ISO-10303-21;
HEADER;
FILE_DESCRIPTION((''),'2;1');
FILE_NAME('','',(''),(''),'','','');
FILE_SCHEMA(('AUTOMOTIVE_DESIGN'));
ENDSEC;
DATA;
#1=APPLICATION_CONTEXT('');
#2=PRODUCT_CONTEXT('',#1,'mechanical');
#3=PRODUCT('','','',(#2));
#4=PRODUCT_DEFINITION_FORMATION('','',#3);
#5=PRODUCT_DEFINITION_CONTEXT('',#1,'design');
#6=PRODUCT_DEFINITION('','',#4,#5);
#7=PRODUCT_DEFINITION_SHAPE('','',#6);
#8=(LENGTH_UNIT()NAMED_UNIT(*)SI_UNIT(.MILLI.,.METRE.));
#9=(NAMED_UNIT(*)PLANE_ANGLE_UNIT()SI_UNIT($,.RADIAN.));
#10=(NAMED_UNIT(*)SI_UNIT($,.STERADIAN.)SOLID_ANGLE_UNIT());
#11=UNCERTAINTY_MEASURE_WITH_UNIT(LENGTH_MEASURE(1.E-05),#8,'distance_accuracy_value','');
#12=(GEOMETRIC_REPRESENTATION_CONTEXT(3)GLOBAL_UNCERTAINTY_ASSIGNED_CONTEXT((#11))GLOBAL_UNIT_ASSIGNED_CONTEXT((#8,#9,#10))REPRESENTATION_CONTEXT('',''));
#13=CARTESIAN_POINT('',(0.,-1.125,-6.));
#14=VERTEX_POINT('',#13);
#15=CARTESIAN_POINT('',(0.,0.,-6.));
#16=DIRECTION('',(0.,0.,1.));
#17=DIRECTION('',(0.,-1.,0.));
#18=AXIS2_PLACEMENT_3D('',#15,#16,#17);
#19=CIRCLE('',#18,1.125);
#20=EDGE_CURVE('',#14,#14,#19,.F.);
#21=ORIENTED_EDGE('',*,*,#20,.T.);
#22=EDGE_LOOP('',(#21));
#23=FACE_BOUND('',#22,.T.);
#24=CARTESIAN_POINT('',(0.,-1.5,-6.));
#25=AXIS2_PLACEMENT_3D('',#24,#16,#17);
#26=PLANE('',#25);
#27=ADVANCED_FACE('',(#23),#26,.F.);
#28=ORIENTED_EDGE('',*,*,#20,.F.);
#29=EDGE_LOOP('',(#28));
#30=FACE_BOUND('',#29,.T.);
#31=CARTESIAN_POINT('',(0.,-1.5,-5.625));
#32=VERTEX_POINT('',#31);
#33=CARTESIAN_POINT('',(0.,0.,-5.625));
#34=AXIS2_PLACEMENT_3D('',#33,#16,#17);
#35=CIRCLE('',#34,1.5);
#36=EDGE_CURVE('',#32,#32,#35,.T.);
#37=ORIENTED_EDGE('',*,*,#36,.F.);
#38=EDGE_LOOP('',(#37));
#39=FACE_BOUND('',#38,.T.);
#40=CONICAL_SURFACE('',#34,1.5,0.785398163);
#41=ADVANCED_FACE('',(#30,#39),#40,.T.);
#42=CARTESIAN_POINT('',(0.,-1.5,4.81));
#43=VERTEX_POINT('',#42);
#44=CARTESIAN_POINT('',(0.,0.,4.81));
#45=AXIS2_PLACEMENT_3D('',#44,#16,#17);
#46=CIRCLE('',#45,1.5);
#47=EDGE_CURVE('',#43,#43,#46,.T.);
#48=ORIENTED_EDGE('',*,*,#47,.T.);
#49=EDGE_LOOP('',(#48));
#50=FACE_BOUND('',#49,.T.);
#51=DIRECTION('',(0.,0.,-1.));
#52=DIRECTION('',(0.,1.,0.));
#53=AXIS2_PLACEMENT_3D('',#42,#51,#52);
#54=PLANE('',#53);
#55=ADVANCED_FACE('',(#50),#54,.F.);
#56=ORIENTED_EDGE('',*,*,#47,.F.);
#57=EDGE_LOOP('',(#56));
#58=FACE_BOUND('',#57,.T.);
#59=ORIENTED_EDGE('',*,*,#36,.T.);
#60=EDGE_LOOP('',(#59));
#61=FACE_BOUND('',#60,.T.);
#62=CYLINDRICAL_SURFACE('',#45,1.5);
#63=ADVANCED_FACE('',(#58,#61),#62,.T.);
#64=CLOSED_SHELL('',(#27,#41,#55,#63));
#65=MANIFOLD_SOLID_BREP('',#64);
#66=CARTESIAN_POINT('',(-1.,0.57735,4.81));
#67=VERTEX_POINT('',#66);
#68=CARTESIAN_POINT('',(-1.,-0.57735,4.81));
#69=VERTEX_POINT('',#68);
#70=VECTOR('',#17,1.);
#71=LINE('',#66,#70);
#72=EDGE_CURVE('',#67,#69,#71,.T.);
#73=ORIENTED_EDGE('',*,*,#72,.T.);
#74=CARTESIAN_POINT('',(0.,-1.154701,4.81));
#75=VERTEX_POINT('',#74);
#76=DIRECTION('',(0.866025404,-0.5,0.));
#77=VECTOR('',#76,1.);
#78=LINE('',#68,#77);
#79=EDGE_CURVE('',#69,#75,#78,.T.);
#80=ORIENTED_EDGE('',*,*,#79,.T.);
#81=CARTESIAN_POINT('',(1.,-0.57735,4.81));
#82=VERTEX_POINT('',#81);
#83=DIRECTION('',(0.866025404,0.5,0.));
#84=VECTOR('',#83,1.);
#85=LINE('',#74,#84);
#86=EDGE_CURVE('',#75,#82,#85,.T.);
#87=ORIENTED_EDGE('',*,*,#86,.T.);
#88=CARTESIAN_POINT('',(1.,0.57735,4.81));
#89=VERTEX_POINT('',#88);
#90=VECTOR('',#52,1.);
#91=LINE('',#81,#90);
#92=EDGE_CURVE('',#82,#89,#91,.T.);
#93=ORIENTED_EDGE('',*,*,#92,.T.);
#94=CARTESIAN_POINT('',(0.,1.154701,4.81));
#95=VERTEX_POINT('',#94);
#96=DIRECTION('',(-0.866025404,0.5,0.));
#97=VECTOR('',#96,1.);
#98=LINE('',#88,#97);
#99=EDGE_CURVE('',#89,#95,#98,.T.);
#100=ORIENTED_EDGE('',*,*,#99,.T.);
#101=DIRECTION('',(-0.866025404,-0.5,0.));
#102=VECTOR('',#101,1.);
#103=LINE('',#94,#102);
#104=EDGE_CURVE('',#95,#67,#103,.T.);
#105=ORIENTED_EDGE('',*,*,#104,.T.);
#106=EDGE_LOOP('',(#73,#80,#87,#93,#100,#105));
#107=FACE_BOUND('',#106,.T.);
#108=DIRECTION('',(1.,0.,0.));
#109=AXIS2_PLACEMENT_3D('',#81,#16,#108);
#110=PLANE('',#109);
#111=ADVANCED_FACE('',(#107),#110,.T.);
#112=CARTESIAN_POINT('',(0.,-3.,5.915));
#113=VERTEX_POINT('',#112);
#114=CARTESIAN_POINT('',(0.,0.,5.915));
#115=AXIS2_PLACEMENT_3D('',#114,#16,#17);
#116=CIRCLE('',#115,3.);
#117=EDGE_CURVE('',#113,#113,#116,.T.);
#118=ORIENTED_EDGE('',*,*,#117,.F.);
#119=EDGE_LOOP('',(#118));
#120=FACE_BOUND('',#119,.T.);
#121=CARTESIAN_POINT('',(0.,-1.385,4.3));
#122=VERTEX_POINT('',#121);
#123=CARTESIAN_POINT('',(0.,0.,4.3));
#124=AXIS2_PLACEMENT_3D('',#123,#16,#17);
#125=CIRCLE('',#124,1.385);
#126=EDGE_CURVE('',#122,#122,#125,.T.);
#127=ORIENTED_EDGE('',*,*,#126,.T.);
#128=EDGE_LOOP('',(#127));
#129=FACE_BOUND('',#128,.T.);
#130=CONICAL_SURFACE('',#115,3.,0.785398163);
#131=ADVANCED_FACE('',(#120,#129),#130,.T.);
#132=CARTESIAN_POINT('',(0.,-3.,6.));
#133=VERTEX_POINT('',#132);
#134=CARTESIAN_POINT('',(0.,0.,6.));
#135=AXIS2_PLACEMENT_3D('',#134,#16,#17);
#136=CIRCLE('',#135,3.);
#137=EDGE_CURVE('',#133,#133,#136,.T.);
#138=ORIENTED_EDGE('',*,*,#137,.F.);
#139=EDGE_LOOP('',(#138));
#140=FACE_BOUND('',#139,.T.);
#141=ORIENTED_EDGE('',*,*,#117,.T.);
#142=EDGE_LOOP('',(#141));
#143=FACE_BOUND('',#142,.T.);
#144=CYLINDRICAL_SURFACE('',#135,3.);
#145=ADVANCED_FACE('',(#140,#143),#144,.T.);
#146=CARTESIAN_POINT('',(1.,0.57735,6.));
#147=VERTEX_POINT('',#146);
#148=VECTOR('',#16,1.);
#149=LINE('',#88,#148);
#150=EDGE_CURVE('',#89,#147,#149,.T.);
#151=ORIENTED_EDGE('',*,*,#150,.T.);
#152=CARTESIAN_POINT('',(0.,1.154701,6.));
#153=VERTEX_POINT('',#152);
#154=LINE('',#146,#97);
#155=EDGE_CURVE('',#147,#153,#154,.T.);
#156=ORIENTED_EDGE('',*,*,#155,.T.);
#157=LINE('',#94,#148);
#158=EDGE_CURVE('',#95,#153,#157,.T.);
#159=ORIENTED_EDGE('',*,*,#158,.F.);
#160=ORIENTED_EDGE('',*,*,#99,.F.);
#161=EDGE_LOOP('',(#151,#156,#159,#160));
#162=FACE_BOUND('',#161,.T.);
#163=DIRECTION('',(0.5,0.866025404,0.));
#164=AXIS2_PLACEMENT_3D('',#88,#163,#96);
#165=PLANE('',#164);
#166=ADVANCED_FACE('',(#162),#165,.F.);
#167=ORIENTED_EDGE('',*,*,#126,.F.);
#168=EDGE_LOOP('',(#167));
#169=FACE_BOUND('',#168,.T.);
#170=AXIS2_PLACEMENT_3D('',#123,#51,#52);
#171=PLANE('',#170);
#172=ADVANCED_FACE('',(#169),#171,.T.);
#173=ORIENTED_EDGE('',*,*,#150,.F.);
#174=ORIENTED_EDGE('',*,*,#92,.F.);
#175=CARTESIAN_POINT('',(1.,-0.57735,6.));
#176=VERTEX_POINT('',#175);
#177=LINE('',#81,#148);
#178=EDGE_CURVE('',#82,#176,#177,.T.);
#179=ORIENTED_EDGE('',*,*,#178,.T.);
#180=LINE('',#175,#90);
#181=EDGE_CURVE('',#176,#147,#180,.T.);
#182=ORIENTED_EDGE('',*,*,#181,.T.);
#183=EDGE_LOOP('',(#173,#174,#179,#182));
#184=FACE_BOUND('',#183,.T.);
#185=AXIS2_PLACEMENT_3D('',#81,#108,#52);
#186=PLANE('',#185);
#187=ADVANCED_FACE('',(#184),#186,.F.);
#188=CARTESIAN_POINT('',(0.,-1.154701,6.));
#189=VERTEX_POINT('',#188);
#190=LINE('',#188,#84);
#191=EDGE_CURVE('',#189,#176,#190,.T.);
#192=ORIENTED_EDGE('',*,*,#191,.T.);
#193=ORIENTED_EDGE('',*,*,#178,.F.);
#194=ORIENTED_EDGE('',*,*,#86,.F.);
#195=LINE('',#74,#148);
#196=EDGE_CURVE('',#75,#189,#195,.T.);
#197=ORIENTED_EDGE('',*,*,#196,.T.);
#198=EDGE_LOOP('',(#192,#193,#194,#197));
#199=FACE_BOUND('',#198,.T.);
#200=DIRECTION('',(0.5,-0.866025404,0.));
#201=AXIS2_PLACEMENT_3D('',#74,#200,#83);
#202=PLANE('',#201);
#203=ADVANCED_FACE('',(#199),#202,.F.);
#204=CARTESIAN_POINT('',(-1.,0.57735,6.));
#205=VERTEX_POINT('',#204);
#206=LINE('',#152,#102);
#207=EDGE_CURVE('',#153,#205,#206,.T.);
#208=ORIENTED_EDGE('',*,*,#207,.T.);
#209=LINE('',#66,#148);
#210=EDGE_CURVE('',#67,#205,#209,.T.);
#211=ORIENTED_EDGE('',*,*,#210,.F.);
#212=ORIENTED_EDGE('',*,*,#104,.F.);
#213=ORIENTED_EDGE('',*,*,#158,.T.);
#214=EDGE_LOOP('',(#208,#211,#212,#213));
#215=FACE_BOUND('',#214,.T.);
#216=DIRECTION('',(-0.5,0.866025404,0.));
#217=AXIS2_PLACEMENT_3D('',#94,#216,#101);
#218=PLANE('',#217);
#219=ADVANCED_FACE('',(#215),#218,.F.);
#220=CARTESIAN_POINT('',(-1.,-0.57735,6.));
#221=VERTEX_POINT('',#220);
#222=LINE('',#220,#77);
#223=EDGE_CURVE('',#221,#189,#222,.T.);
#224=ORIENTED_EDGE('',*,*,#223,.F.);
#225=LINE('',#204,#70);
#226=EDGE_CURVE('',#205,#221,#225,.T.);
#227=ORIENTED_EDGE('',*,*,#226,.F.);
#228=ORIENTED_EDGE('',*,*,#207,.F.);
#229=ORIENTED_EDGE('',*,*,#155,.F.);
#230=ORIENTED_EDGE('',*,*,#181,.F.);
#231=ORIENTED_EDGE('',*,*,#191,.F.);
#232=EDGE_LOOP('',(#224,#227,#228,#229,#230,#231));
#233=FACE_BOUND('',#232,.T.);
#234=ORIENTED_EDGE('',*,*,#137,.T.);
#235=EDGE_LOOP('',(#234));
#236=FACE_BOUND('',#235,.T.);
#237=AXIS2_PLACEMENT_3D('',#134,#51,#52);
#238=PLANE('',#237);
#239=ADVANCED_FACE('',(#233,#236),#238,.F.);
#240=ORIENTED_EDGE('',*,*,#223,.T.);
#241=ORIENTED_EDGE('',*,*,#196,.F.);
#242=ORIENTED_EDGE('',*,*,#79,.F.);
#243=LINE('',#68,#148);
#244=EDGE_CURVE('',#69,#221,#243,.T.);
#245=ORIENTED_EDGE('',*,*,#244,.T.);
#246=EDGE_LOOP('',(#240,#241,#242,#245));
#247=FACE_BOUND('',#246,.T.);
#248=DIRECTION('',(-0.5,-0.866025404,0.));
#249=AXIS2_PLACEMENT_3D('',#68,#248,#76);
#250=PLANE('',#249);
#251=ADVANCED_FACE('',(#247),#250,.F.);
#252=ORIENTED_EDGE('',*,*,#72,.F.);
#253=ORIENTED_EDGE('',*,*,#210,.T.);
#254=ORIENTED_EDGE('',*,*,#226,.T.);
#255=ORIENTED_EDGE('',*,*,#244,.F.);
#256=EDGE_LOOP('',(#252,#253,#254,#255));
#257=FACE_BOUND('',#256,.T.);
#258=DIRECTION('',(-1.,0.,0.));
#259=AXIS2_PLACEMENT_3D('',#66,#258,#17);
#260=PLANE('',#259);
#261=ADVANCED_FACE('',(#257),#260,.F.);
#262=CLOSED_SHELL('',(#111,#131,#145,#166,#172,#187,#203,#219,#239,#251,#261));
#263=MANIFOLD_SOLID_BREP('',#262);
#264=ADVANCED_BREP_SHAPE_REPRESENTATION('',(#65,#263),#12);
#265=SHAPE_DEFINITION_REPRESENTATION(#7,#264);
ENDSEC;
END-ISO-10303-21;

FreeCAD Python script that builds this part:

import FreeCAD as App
import Part
import Sketcher
Q = App.Units.Quantity


def edges_at(feature, points):
    """Names of the edges that pass closest to the given points."""
    edges = feature.Shape.Edges
    near = lambda p: min(range(len(edges)), key=lambda i: edges[i].distToShape(Part.Vertex(*p))[0])
    return sorted({f"Edge{near(p) + 1}" for p in points})


def add_polygon(sketch, points):
    """Adds a closed chain of lines whose ends are joined by coincident constraints."""
    first, n = sketch.GeometryCount, len(points)
    for a, b in zip(points, points[1:] + points[:1]):
        sketch.addGeometry(Part.LineSegment(App.Vector(*a, 0), App.Vector(*b, 0)), False)
    for i in range(n):
        sketch.addConstraint(Sketcher.Constraint("Coincident", first + i, 2, first + (i + 1) % n, 1))

doc = App.newDocument("Part")
body = doc.addObject("PartDesign::Body", "Body")

sketch1 = doc.addObject("Sketcher::SketchObject", "Sketch")
body.addObject(sketch1)
sketch1.AttachmentSupport = (doc.YZ_Plane, [""])
sketch1.MapMode = "FlatFace"
add_polygon(sketch1, [(1.5, -6), (1.5, 4.8), (0, 4.8), (0, -6)])
sketch1.addConstraint([
    Sketcher.Constraint("Vertical", 0),
    Sketcher.Constraint("Horizontal", 1),
    Sketcher.Constraint("Vertical", 2),
    Sketcher.Constraint("Horizontal", 3),
    Sketcher.Constraint("PointOnObject", 1, 2, -2),
    Sketcher.Constraint("DistanceX", 1, 2, 1, 1, Q("1.5 mm")),
    Sketcher.Constraint("DistanceY", 2, 2, -1, 1, Q("6 mm")),
    Sketcher.Constraint("DistanceY", 0, 1, 0, 2, Q("10.81 mm")),
])
revolution = doc.addObject("PartDesign::Revolution", "Revolution")
body.addObject(revolution)
revolution.Profile = sketch1
revolution.ReferenceAxis = (sketch1, ["V_Axis"])
revolution.Angle = 360
doc.recompute()

chamfer = doc.addObject("PartDesign::Chamfer", "Chamfer")
body.addObject(chamfer)
chamfer.Base = (revolution, edges_at(revolution, [(0, 1.5, -6)]))
chamfer.Size = 0.375
body2 = doc.addObject("PartDesign::Body", "Body001")

sketch2 = doc.addObject("Sketcher::SketchObject", "Sketch001")
body2.addObject(sketch2)
sketch2.AttachmentSupport = (doc.getObject("YZ_Plane001"), [""])
sketch2.MapMode = "FlatFace"
add_polygon(sketch2, [(3, 5.92), (3, 6), (0, 6), (0, 4.3), (1.39, 4.3)])
sketch2.addConstraint([
    Sketcher.Constraint("Vertical", 0),
    Sketcher.Constraint("Horizontal", 1),
    Sketcher.Constraint("Vertical", 2),
    Sketcher.Constraint("Horizontal", 3),
    Sketcher.Constraint("PointOnObject", 1, 2, -2),
    Sketcher.Constraint("DistanceX", 1, 2, 1, 1, Q("3 mm")),
    Sketcher.Constraint("Angle", 4, Q("45 deg")),
    Sketcher.Constraint("DistanceY", 2, 2, 2, 1, Q("1.7 mm")),
    Sketcher.Constraint("DistanceY", -1, 1, 0, 2, Q("6 mm")),
    Sketcher.Constraint("DistanceX", 3, 1, 3, 2, Q("1.385 mm")),
])
revolution2 = doc.addObject("PartDesign::Revolution", "Revolution001")
body2.addObject(revolution2)
revolution2.Profile = sketch2
revolution2.ReferenceAxis = (sketch2, ["V_Axis"])
revolution2.Angle = 360

sketch3 = doc.addObject("Sketcher::SketchObject", "Sketch002")
body2.addObject(sketch3)
sketch3.AttachmentSupport = (doc.getObject("XY_Plane001"), [""])
sketch3.MapMode = "FlatFace"
sketch3.AttachmentOffset = App.Placement(App.Vector(0, 0, 6), App.Rotation())
add_polygon(sketch3, [(1, -0.6), (1, 0.6), (0, 1.2), (-1, 0.6), (-1, -0.6), (0, -1.2)])
sketch3.addConstraint([
    Sketcher.Constraint("Vertical", 0),
    Sketcher.Constraint("Vertical", 3),
    Sketcher.Constraint("Symmetric", 0, 2, 3, 2, -1, 1),
    Sketcher.Constraint("Symmetric", 1, 2, 4, 2, -1, 1),
    Sketcher.Constraint("PointOnObject", 1, 2, -2),
    Sketcher.Constraint("Parallel", 2, 5),
    Sketcher.Constraint("Horizontal", 0, 2, 2, 2),
    Sketcher.Constraint("Angle", 1, Q("150 deg")),
    Sketcher.Constraint("DistanceX", -1, 1, 0, 2, Q("1 mm")),
    Sketcher.Constraint("DistanceY", 0, 1, 0, 2, Q("1.154701 mm")),
])
pocket1 = doc.addObject("PartDesign::Pocket", "Pocket")
body2.addObject(pocket1)
pocket1.Profile = sketch3
pocket1.Length = 1.19

doc.recompute()
